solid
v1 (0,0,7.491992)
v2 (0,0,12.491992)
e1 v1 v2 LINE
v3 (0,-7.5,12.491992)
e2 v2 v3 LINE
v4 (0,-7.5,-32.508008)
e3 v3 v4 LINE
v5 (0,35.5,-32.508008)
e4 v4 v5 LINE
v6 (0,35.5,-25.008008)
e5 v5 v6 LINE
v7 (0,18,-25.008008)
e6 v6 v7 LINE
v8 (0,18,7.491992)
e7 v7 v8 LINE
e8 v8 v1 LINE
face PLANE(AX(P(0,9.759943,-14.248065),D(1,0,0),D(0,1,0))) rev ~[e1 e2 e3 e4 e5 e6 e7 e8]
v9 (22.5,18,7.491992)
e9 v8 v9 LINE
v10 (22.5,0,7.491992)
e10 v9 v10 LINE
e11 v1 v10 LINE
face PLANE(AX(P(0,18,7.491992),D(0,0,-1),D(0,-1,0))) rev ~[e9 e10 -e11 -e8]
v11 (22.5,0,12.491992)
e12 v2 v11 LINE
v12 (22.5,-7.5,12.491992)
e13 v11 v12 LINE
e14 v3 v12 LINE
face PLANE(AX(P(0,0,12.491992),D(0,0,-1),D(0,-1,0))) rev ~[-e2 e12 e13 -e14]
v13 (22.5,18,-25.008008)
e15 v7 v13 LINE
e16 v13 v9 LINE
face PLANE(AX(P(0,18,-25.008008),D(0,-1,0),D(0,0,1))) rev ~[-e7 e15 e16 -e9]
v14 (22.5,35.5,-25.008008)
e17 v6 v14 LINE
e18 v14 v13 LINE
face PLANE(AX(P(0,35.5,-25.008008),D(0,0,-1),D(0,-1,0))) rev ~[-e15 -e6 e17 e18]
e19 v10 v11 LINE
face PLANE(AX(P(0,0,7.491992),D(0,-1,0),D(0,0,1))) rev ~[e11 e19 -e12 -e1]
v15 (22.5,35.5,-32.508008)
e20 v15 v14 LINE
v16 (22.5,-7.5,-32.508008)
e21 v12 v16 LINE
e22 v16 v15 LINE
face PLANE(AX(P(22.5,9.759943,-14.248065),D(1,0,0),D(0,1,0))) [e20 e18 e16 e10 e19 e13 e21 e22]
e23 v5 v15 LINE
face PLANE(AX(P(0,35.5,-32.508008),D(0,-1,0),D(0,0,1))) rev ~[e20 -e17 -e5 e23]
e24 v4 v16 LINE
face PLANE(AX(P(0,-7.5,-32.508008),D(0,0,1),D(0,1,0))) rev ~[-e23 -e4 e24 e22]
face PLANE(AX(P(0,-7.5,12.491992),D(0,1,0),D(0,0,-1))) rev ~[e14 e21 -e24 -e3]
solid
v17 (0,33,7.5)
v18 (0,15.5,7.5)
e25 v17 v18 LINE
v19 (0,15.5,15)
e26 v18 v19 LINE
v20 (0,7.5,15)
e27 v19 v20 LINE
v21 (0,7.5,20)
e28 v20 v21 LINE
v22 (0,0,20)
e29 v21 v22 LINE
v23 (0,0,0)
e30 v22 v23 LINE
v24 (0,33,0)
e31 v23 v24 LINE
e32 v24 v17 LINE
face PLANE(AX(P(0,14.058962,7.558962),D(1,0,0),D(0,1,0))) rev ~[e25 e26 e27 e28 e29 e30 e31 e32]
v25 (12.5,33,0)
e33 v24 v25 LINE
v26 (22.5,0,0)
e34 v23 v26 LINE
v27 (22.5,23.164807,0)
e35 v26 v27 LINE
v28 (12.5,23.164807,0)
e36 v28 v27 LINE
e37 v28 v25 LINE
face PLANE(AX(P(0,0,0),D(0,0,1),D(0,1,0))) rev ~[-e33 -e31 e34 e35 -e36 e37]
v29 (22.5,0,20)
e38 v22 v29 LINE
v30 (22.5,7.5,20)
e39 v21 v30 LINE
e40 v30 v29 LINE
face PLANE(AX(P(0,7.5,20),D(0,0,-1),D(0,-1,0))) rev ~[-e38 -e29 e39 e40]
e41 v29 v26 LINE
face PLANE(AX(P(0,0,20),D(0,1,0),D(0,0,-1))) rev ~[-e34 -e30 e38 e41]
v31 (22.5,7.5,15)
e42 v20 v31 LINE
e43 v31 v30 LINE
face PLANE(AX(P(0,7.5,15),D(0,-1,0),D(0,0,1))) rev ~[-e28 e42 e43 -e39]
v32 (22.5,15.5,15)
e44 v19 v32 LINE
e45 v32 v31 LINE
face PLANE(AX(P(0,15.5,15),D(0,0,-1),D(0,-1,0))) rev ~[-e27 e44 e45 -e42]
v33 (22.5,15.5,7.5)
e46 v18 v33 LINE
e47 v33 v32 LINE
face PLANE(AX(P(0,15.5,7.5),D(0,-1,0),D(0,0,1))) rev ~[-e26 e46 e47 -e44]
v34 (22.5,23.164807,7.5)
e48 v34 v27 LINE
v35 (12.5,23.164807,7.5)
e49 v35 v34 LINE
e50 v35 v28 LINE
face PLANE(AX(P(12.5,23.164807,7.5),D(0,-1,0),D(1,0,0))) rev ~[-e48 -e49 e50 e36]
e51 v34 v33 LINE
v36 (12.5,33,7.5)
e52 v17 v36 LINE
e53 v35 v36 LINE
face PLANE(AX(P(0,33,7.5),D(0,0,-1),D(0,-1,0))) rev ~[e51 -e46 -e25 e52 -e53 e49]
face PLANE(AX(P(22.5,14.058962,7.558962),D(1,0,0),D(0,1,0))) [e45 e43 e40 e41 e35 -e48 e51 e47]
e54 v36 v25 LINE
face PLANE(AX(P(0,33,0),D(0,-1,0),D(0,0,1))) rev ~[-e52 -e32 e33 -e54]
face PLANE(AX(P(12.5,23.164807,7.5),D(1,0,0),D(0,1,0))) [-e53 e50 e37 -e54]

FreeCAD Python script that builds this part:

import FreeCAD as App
import Part
import Sketcher
Q = App.Units.Quantity

doc = App.newDocument("Part")
params = doc.addObject("Spreadsheet::Sheet", "Params")
for row, (alias, value) in enumerate([
    ("sketch1_width", "33 mm"),
    ("sketch1_width2", "8 mm"),
    ("sketch1_height", "20 mm"),
    ("sketch1_height2", "5 mm"),
    ("pad1_length", "22.5 mm"),
    ("sketch2_width", "10 mm"),
    ("pocket1_length", "25 mm"),
    ("sketch3_width", "43 mm"),
    ("sketch3_width2", "18 mm"),
    ("sketch3_height", "45 mm"),
    ("sketch3_height2", "5 mm"),
    ("sketch3_width3", "17.5 mm"),
    ("pad2_length", "22.5 mm"),
], start=1):
    params.set(f"A{row}", alias)
    params.set(f"B{row}", "=" + value)
    params.setAlias(f"B{row}", alias)

body = doc.addObject("PartDesign::Body", "Body")

# Sketch on YZ plane
sketch1 = body.newObject("Sketcher::SketchObject", "Sketch")
sketch1.AttachmentSupport = (doc.getObject("YZ_Plane"), [""])
sketch1.MapMode = "FlatFace"
sketch1.addGeometry(Part.LineSegment(App.Vector(0, 20, 0), App.Vector(0, 0, 0)), False)
sketch1.addGeometry(Part.LineSegment(App.Vector(0, 0, 0), App.Vector(33, 0, 0)), False)
sketch1.addGeometry(Part.LineSegment(App.Vector(33, 0, 0), App.Vector(33, 7.5, 0)), False)
sketch1.addGeometry(Part.LineSegment(App.Vector(33, 7.5, 0), App.Vector(15.5, 7.5, 0)), False)
sketch1.addGeometry(Part.LineSegment(App.Vector(15.5, 7.5, 0), App.Vector(15.5, 15, 0)), False)
sketch1.addGeometry(Part.LineSegment(App.Vector(15.5, 15, 0), App.Vector(7.5, 15, 0)), False)
sketch1.addGeometry(Part.LineSegment(App.Vector(7.5, 15, 0), App.Vector(7.5, 20, 0)), False)
sketch1.addGeometry(Part.LineSegment(App.Vector(7.5, 20, 0), App.Vector(0, 20, 0)), False)
sketch1.addConstraint(Sketcher.Constraint("Coincident", 0, 2, 1, 1))
sketch1.addConstraint(Sketcher.Constraint("Coincident", 1, 2, 2, 1))
sketch1.addConstraint(Sketcher.Constraint("Coincident", 2, 2, 3, 1))
sketch1.addConstraint(Sketcher.Constraint("Coincident", 3, 2, 4, 1))
sketch1.addConstraint(Sketcher.Constraint("Coincident", 4, 2, 5, 1))
sketch1.addConstraint(Sketcher.Constraint("Coincident", 5, 2, 6, 1))
sketch1.addConstraint(Sketcher.Constraint("Coincident", 6, 2, 7, 1))
sketch1.addConstraint(Sketcher.Constraint("Coincident", 7, 2, 0, 1))
sketch1.addConstraint(Sketcher.Constraint("Vertical", 0))
sketch1.addConstraint(Sketcher.Constraint("Horizontal", 1))
sketch1.addConstraint(Sketcher.Constraint("Vertical", 2))
sketch1.addConstraint(Sketcher.Constraint("Horizontal", 3))
sketch1.addConstraint(Sketcher.Constraint("Vertical", 4))
sketch1.addConstraint(Sketcher.Constraint("Horizontal", 5))
sketch1.addConstraint(Sketcher.Constraint("Vertical", 6))
sketch1.addConstraint(Sketcher.Constraint("Horizontal", 7))
sketch1.addConstraint(Sketcher.Constraint("Coincident", 0, 2, -1, 1))
sketch1.addConstraint(Sketcher.Constraint("Equal", 7, 2))
sketch1.addConstraint(Sketcher.Constraint("Equal", 2, 4))
sketch1.addConstraint(Sketcher.Constraint("DistanceX", 1, 1, 1, 2, Q("33 mm")))
sketch1.addConstraint(Sketcher.Constraint("DistanceX", 5, 2, 5, 1, Q("8 mm")))
sketch1.addConstraint(Sketcher.Constraint("DistanceY", 0, 2, 0, 1, Q("20 mm")))
sketch1.addConstraint(Sketcher.Constraint("DistanceY", 6, 1, 6, 2, Q("5 mm")))
sketch1.setExpression("Constraints[19]", "Params.sketch1_width")
sketch1.setExpression("Constraints[20]", "Params.sketch1_width2")
sketch1.setExpression("Constraints[21]", "Params.sketch1_height")
sketch1.setExpression("Constraints[22]", "Params.sketch1_height2")
pad1 = body.newObject("PartDesign::Pad", "Pad")
pad1.Profile = sketch1
pad1.setExpression("Length", "Params.pad1_length")

# Sketch on XY plane
sketch2 = body.newObject("Sketcher::SketchObject", "Sketch001")
sketch2.AttachmentSupport = (doc.getObject("XY_Plane"), [""])
sketch2.MapMode = "FlatFace"
sketch2.AttachmentOffset = App.Placement(App.Vector(0, 0, 7.5), App.Rotation())
sketch2.addGeometry(Part.LineSegment(App.Vector(12.5, 33, 0), App.Vector(12.5, 23.164807, 0)), False)
sketch2.addGeometry(Part.LineSegment(App.Vector(12.5, 23.164807, 0), App.Vector(22.5, 23.164807, 0)), False)
sketch2.addGeometry(Part.LineSegment(App.Vector(22.5, 23.164807, 0), App.Vector(22.5, 33, 0)), False)
sketch2.addGeometry(Part.LineSegment(App.Vector(22.5, 33, 0), App.Vector(12.5, 33, 0)), False)
sketch2.addConstraint(Sketcher.Constraint("Coincident", 0, 2, 1, 1))
sketch2.addConstraint(Sketcher.Constraint("Coincident", 1, 2, 2, 1))
sketch2.addConstraint(Sketcher.Constraint("Coincident", 2, 2, 3, 1))
sketch2.addConstraint(Sketcher.Constraint("Coincident", 3, 2, 0, 1))
sketch2.addConstraint(Sketcher.Constraint("Vertical", 0))
sketch2.addConstraint(Sketcher.Constraint("Horizontal", 1))
sketch2.addConstraint(Sketcher.Constraint("Vertical", 2))
sketch2.addConstraint(Sketcher.Constraint("Horizontal", 3))
sketch2.addConstraint(Sketcher.Constraint("DistanceX", 1, 1, 1, 2, Q("10 mm")))
sketch2.addConstraint(Sketcher.Constraint("DistanceY", -1, 1, 2, 2, Q("33 mm")))
sketch2.addConstraint(Sketcher.Constraint("DistanceX", -1, 1, 0, 2, Q("12.5 mm")))
sketch2.addConstraint(Sketcher.Constraint("DistanceY", 0, 2, 0, 1, Q("9.835193 mm")))
sketch2.setExpression("Constraints[8]", "Params.sketch2_width")
pocket1 = body.newObject("PartDesign::Pocket", "Pocket")
pocket1.Profile = sketch2
pocket1.setExpression("Length", "Params.pocket1_length")
body2 = doc.addObject("PartDesign::Body", "Body001")

# Sketch on YZ plane
sketch3 = body2.newObject("Sketcher::SketchObject", "Sketch002")
sketch3.AttachmentSupport = (doc.getObject("YZ_Plane001"), [""])
sketch3.MapMode = "FlatFace"
sketch3.addGeometry(Part.LineSegment(App.Vector(-7.5, 12.491992, 0), App.Vector(-7.5, -32.508008, 0)), False)
sketch3.addGeometry(Part.LineSegment(App.Vector(-7.5, -32.508008, 0), App.Vector(35.5, -32.508008, 0)), False)
sketch3.addGeometry(Part.LineSegment(App.Vector(35.5, -32.508008, 0), App.Vector(35.5, -25.008008, 0)), False)
sketch3.addGeometry(Part.LineSegment(App.Vector(35.5, -25.008008, 0), App.Vector(18, -25.008008, 0)), False)
sketch3.addGeometry(Part.LineSegment(App.Vector(18, -25.008008, 0), App.Vector(18, 7.491992, 0)), False)
sketch3.addGeometry(Part.LineSegment(App.Vector(18, 7.491992, 0), App.Vector(0, 7.491992, 0)), False)
sketch3.addGeometry(Part.LineSegment(App.Vector(0, 7.491992, 0), App.Vector(0, 12.491992, 0)), False)
sketch3.addGeometry(Part.LineSegment(App.Vector(0, 12.491992, 0), App.Vector(-7.5, 12.491992, 0)), False)
sketch3.addConstraint(Sketcher.Constraint("Coincident", 0, 2, 1, 1))
sketch3.addConstraint(Sketcher.Constraint("Coincident", 1, 2, 2, 1))
sketch3.addConstraint(Sketcher.Constraint("Coincident", 2, 2, 3, 1))
sketch3.addConstraint(Sketcher.Constraint("Coincident", 3, 2, 4, 1))
sketch3.addConstraint(Sketcher.Constraint("Coincident", 4, 2, 5, 1))
sketch3.addConstraint(Sketcher.Constraint("Coincident", 5, 2, 6, 1))
sketch3.addConstraint(Sketcher.Constraint("Coincident", 6, 2, 7, 1))
sketch3.addConstraint(Sketcher.Constraint("Coincident", 7, 2, 0, 1))
sketch3.addConstraint(Sketcher.Constraint("Vertical", 0))
sketch3.addConstraint(Sketcher.Constraint("Horizontal", 1))
sketch3.addConstraint(Sketcher.Constraint("Vertical", 2))
sketch3.addConstraint(Sketcher.Constraint("Horizontal", 3))
sketch3.addConstraint(Sketcher.Constraint("Vertical", 4))
sketch3.addConstraint(Sketcher.Constraint("Horizontal", 5))
sketch3.addConstraint(Sketcher.Constraint("Vertical", 6))
sketch3.addConstraint(Sketcher.Constraint("Horizontal", 7))
sketch3.addConstraint(Sketcher.Constraint("PointOnObject", 5, 2, -2))
sketch3.addConstraint(Sketcher.Constraint("Equal", 7, 2))
sketch3.addConstraint(Sketcher.Constraint("DistanceX", 1, 1, 1, 2, Q("43 mm")))
sketch3.addConstraint(Sketcher.Constraint("DistanceX", 5, 2, 5, 1, Q("18 mm")))
sketch3.addConstraint(Sketcher.Constraint("DistanceY", 0, 2, 0, 1, Q("45 mm")))
sketch3.addConstraint(Sketcher.Constraint("DistanceY", 6, 1, 6, 2, Q("5 mm")))
sketch3.addConstraint(Sketcher.Constraint("DistanceX", 3, 2, 3, 1, Q("17.5 mm")))
sketch3.addConstraint(Sketcher.Constraint("DistanceY", 0, 2, -1, 1, Q("32.508008 mm")))
sketch3.setExpression("Constraints[18]", "Params.sketch3_width")
sketch3.setExpression("Constraints[19]", "Params.sketch3_width2")
sketch3.setExpression("Constraints[20]", "Params.sketch3_height")
sketch3.setExpression("Constraints[21]", "Params.sketch3_height2")
sketch3.setExpression("Constraints[22]", "Params.sketch3_width3")
pad2 = body2.newObject("PartDesign::Pad", "Pad001")
pad2.Profile = sketch3
pad2.setExpression("Length", "Params.pad2_length")

doc.recompute()
